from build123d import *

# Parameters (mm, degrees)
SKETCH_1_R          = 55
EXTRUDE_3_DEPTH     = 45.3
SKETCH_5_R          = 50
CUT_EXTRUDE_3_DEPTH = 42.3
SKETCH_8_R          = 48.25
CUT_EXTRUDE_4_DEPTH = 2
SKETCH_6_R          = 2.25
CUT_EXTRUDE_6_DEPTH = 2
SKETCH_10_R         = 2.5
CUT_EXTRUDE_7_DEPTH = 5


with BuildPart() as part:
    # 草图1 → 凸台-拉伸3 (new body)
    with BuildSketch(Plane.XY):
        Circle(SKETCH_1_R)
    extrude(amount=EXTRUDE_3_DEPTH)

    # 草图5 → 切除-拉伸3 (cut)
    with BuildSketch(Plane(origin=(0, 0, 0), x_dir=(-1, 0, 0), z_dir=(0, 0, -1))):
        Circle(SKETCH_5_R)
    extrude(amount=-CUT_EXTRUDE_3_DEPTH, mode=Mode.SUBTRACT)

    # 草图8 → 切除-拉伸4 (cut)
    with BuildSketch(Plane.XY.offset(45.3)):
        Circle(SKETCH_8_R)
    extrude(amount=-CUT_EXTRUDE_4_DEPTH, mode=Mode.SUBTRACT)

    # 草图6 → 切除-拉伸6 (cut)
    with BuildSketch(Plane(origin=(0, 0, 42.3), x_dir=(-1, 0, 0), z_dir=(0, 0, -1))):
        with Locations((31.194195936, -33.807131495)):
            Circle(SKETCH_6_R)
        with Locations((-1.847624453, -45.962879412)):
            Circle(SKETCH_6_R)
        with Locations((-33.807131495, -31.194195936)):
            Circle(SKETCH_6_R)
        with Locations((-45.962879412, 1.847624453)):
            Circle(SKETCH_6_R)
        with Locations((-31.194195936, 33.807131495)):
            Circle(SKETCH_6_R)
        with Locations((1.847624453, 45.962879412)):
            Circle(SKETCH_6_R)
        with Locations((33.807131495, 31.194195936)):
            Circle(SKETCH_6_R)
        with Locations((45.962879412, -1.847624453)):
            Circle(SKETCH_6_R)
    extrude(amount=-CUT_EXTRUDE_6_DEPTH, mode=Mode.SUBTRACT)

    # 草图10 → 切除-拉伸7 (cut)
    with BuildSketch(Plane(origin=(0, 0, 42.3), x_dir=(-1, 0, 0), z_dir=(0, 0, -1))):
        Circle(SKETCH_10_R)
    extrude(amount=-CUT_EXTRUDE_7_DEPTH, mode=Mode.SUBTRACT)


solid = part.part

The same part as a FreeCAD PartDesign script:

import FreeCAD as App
import Part
import Sketcher
from FreeCAD import Vector
Q = App.Units.Quantity

doc = App.newDocument("Part")
params = doc.addObject("Spreadsheet::Sheet", "Params")
for row, (alias, value) in enumerate([
    ("sketch1_diameter", "110 mm"),
    ("pad1_length", "45.3 mm"),
    ("sketch2_diameter", "100 mm"),
    ("pocket1_length", "42.3 mm"),
    ("sketch3_diameter", "96.5 mm"),
    ("pocket2_length", "2 mm"),
    ("sketch4_diameter", "4.5 mm"),
    ("pocket3_length", "2 mm"),
    ("sketch5_diameter", "5 mm"),
    ("pocket4_length", "5 mm"),
], start=1):
    params.set(f"A{row}", alias)
    params.set(f"B{row}", "=" + value)
    params.setAlias(f"B{row}", alias)

body = doc.addObject("PartDesign::Body", "Body")

sketch1 = doc.addObject("Sketcher::SketchObject", "Sketch")
body.addObject(sketch1)
sketch1.AttachmentSupport = (doc.XY_Plane, [""])
sketch1.MapMode = "FlatFace"
sketch1.addGeometry(Part.Circle(Vector(0, 0, 0), Vector(0, 0, 1), 55), False)
sketch1.addConstraint([
    Sketcher.Constraint("Coincident", 0, 3, -1, 1),
    Sketcher.Constraint("Diameter", 0, Q("110 mm")),
])
sketch1.setExpression("Constraints[1]", "Params.sketch1_diameter")
pad1 = doc.addObject("PartDesign::Pad", "Pad")
body.addObject(pad1)
pad1.Profile = sketch1
pad1.setExpression("Length", "Params.pad1_length")

sketch2 = doc.addObject("Sketcher::SketchObject", "Sketch001")
body.addObject(sketch2)
sketch2.AttachmentSupport = (doc.XY_Plane, [""])
sketch2.MapMode = "FlatFace"
sketch2.addGeometry(Part.Circle(Vector(0, 0, 0), Vector(0, 0, 1), 50), False)
sketch2.addConstraint([
    Sketcher.Constraint("Coincident", 0, 3, -1, 1),
    Sketcher.Constraint("Diameter", 0, Q("100 mm")),
])
sketch2.setExpression("Constraints[1]", "Params.sketch2_diameter")
pocket1 = doc.addObject("PartDesign::Pocket", "Pocket")
body.addObject(pocket1)
pocket1.Profile = sketch2
pocket1.setExpression("Length", "Params.pocket1_length")
pocket1.Reversed = True

sketch3 = doc.addObject("Sketcher::SketchObject", "Sketch002")
body.addObject(sketch3)
sketch3.AttachmentSupport = (doc.XY_Plane, [""])
sketch3.MapMode = "FlatFace"
sketch3.AttachmentOffset = App.Placement(Vector(0, 0, 45.3), App.Rotation())
sketch3.addGeometry(Part.Circle(Vector(0, 0, 0), Vector(0, 0, 1), 48.25), False)
sketch3.addConstraint([
    Sketcher.Constraint("Coincident", 0, 3, -1, 1),
    Sketcher.Constraint("Diameter", 0, Q("96.5 mm")),
])
sketch3.setExpression("Constraints[1]", "Params.sketch3_diameter")
pocket2 = doc.addObject("PartDesign::Pocket", "Pocket001")
body.addObject(pocket2)
pocket2.Profile = sketch3
pocket2.setExpression("Length", "Params.pocket2_length")

sketch4 = doc.addObject("Sketcher::SketchObject", "Sketch003")
body.addObject(sketch4)
sketch4.AttachmentSupport = (doc.XY_Plane, [""])
sketch4.MapMode = "FlatFace"
sketch4.AttachmentOffset = App.Placement(Vector(0, 0, 42.3), App.Rotation())
sketch4.addGeometry([
    Part.Circle(Vector(-31.194196, -33.807131, 0), Vector(0, 0, 1), 2.25),
    Part.Circle(Vector(1.847624, -45.962879, 0), Vector(0, 0, 1), 2.25),
    Part.Circle(Vector(33.807131, -31.194196, 0), Vector(0, 0, 1), 2.25),
    Part.Circle(Vector(45.962879, 1.847624, 0), Vector(0, 0, 1), 2.25),
    Part.Circle(Vector(31.194196, 33.807131, 0), Vector(0, 0, 1), 2.25),
    Part.Circle(Vector(-1.847624, 45.962879, 0), Vector(0, 0, 1), 2.25),
    Part.Circle(Vector(-33.807131, 31.194196, 0), Vector(0, 0, 1), 2.25),
    Part.Circle(Vector(-45.962879, -1.847624, 0), Vector(0, 0, 1), 2.25),
], False)
sketch4.addConstraint([
    Sketcher.Constraint("Equal", 0, 1),
    Sketcher.Constraint("Equal", 1, 2),
    Sketcher.Constraint("Equal", 2, 3),
    Sketcher.Constraint("Equal", 3, 4),
    Sketcher.Constraint("Equal", 4, 5),
    Sketcher.Constraint("Equal", 5, 6),
    Sketcher.Constraint("Equal", 6, 7),
    Sketcher.Constraint("Symmetric", 0, 3, 4, 3, -1, 1),
    Sketcher.Constraint("Symmetric", 1, 3, 5, 3, -1, 1),
    Sketcher.Constraint("Symmetric", 2, 3, 6, 3, -1, 1),
    Sketcher.Constraint("Symmetric", 3, 3, 7, 3, -1, 1),
    Sketcher.Constraint("Diameter", 0, Q("4.5 mm")),
    Sketcher.Constraint("DistanceY", 0, 3, -1, 1, Q("33.807131 mm")),
    Sketcher.Constraint("DistanceY", 1, 3, -1, 1, Q("45.962879 mm")),
    Sketcher.Constraint("DistanceX", -1, 1, 2, 3, Q("33.807131 mm")),
    Sketcher.Constraint("DistanceX", -1, 1, 3, 3, Q("45.962879 mm")),
    Sketcher.Constraint("DistanceX", 0, 3, 1, 3, Q("33.04182 mm")),
    Sketcher.Constraint("DistanceY", 2, 3, 3, 3, Q("33.04182 mm")),
    Sketcher.Constraint("DistanceX", 1, 3, 4, 3, Q("29.346571 mm")),
    Sketcher.Constraint("DistanceY", 3, 3, 6, 3, Q("29.346571 mm")),
])
sketch4.setExpression("Constraints[11]", "Params.sketch4_diameter")
pocket3 = doc.addObject("PartDesign::Pocket", "Pocket002")
body.addObject(pocket3)
pocket3.Profile = sketch4
pocket3.setExpression("Length", "Params.pocket3_length")
pocket3.Reversed = True

sketch5 = doc.addObject("Sketcher::SketchObject", "Sketch004")
body.addObject(sketch5)
sketch5.AttachmentSupport = (doc.XY_Plane, [""])
sketch5.MapMode = "FlatFace"
sketch5.AttachmentOffset = App.Placement(Vector(0, 0, 42.3), App.Rotation())
sketch5.addGeometry(Part.Circle(Vector(0, 0, 0), Vector(0, 0, 1), 2.5), False)
sketch5.addConstraint([
    Sketcher.Constraint("Coincident", 0, 3, -1, 1),
    Sketcher.Constraint("Diameter", 0, Q("5 mm")),
])
sketch5.setExpression("Constraints[1]", "Params.sketch5_diameter")
pocket4 = doc.addObject("PartDesign::Pocket", "Pocket003")
body.addObject(pocket4)
pocket4.Profile = sketch5
pocket4.setExpression("Length", "Params.pocket4_length")
pocket4.Reversed = True

doc.recompute()
